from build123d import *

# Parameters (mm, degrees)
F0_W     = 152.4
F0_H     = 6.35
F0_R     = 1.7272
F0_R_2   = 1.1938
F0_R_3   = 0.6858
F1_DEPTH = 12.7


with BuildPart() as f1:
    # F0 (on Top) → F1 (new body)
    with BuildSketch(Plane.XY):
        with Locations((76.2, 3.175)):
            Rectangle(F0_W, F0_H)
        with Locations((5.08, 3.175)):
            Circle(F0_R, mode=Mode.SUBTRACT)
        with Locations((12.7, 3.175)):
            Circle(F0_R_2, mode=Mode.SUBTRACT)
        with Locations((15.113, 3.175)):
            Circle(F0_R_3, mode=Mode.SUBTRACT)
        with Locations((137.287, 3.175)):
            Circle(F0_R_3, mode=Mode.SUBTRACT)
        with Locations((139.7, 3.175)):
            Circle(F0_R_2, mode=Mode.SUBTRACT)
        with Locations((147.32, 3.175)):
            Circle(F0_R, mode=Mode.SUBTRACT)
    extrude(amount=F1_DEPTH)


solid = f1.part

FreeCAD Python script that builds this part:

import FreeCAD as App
import Part
import Sketcher
from FreeCAD import Vector
Q = App.Units.Quantity

doc = App.newDocument("Part")
body = doc.addObject("PartDesign::Body", "Body")

# Sketch on XY plane
sketch1 = body.newObject("Sketcher::SketchObject", "Sketch")
sketch1.AttachmentSupport = (doc.getObject("XY_Plane"), [""])
sketch1.MapMode = "FlatFace"
sketch1.addGeometry([
    Part.LineSegment(Vector(0, 6.3, 0), Vector(0, 0, 0)),  # 0
    Part.LineSegment(Vector(0, 0, 0), Vector(152.4, 0, 0)),  # 1
    Part.LineSegment(Vector(152.4, 0, 0), Vector(152.4, 6.3, 0)),  # 2
    Part.LineSegment(Vector(152.4, 6.3, 0), Vector(0, 6.3, 0)),  # 3
    Part.Circle(Vector(5.1, 3.2, 0), Vector(0, 0, 1), 1.7),  # 4
    Part.Circle(Vector(12.7, 3.2, 0), Vector(0, 0, 1), 1.2),  # 5
    Part.Circle(Vector(15.1, 3.2, 0), Vector(0, 0, 1), 0.7),  # 6
    Part.Circle(Vector(137.3, 3.2, 0), Vector(0, 0, 1), 0.7),  # 7
    Part.Circle(Vector(139.7, 3.2, 0), Vector(0, 0, 1), 1.2),  # 8
    Part.Circle(Vector(147.3, 3.2, 0), Vector(0, 0, 1), 1.7),  # 9
], False)
sketch1.addConstraint([
    Sketcher.Constraint("Coincident", 0, 2, 1, 1),
    Sketcher.Constraint("Coincident", 1, 2, 2, 1),
    Sketcher.Constraint("Coincident", 2, 2, 3, 1),
    Sketcher.Constraint("Coincident", 3, 2, 0, 1),
    Sketcher.Constraint("Vertical", 0),
    Sketcher.Constraint("Horizontal", 1),
    Sketcher.Constraint("Vertical", 2),
    Sketcher.Constraint("Horizontal", 3),
    Sketcher.Constraint("Coincident", 0, 2, -1, 1),
    Sketcher.Constraint("Equal", 6, 7),
    Sketcher.Constraint("Equal", 5, 8),
    Sketcher.Constraint("Equal", 4, 9),
    Sketcher.Constraint("Horizontal", 4, 3, 5, 3),
    Sketcher.Constraint("Horizontal", 5, 3, 6, 3),
    Sketcher.Constraint("Horizontal", 6, 3, 7, 3),
    Sketcher.Constraint("Horizontal", 7, 3, 8, 3),
    Sketcher.Constraint("Horizontal", 8, 3, 9, 3),
    Sketcher.Constraint("DistanceX", 1, 1, 1, 2, Q("6 in")),
    Sketcher.Constraint("Diameter", 4, Q("0.136 in")),
    Sketcher.Constraint("Diameter", 5, Q("0.094 in")),
    Sketcher.Constraint("Diameter", 6, Q("0.054 in")),
    Sketcher.Constraint("DistanceX", 5, 3, 8, 3, Q("5 in")),
    Sketcher.Constraint("DistanceY", 0, 2, 0, 1, Q("0.25 in")),
    Sketcher.Constraint("DistanceX", -1, 1, 4, 3, Q("0.2 in")),
    Sketcher.Constraint("DistanceX", -1, 1, 5, 3, Q("0.5 in")),
    Sketcher.Constraint("DistanceX", -1, 1, 9, 3, Q("5.8 in")),
    Sketcher.Constraint("DistanceX", 6, 3, 7, 3, Q("4.81 in")),
    Sketcher.Constraint("DistanceY", -1, 1, 4, 3, Q("0.125 in")),
    Sketcher.Constraint("DistanceX", -1, 1, 6, 3, Q("0.595 in")),
])
pad1 = body.newObject("PartDesign::Pad", "Pad")
pad1.Profile = sketch1
pad1.Length = Q("0.5 in")

doc.recompute()
